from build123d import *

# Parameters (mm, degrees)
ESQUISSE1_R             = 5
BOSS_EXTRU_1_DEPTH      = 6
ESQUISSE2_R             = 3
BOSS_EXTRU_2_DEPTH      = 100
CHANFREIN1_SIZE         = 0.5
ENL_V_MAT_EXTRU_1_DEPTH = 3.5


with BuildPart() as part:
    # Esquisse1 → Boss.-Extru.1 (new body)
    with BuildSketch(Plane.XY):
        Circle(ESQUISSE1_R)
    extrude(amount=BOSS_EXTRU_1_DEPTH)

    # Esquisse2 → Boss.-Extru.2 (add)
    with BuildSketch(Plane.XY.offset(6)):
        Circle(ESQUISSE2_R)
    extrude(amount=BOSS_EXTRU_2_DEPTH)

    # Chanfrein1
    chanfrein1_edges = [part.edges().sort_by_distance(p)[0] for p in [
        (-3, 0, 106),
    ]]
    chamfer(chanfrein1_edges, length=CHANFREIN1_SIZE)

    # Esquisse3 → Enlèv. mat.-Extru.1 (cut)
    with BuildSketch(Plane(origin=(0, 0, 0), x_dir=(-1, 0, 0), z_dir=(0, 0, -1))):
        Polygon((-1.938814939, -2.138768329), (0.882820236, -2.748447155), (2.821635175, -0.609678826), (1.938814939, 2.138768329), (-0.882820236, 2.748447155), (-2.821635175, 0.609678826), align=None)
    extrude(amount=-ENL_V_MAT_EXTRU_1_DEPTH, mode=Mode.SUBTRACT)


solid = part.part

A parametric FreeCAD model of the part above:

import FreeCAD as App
import Part
import Sketcher

V = App.Vector


def edges_at(feature, points):
    """Names of the edges that pass closest to the given points."""
    edges = feature.Shape.Edges
    near = lambda p: min(range(len(edges)), key=lambda i: edges[i].distToShape(Part.Vertex(*p))[0])
    return sorted({f"Edge{near(p) + 1}" for p in points})

doc = App.newDocument("Part")
body = doc.addObject("PartDesign::Body", "Body")

sketch1 = doc.addObject("Sketcher::SketchObject", "Sketch")
body.addObject(sketch1)
sketch1.AttachmentSupport = (doc.XY_Plane, [""])
sketch1.MapMode = "FlatFace"
sketch1.addGeometry(Part.Circle(V(0, 0, 0), V(0, 0, 1), 5), False)
sketch1.addConstraint(Sketcher.Constraint("Coincident", 0, 3, -1, 1))
sketch1.addConstraint(Sketcher.Constraint("Diameter", 0, 10.0))
pad1 = doc.addObject("PartDesign::Pad", "Pad")
body.addObject(pad1)
pad1.Profile = sketch1
pad1.Length = 6

sketch2 = doc.addObject("Sketcher::SketchObject", "Sketch001")
body.addObject(sketch2)
sketch2.AttachmentSupport = (doc.XY_Plane, [""])
sketch2.MapMode = "FlatFace"
sketch2.AttachmentOffset = App.Placement(V(0, 0, 6), App.Rotation())
sketch2.addGeometry(Part.Circle(V(0, 0, 0), V(0, 0, 1), 3), False)
sketch2.addConstraint(Sketcher.Constraint("Coincident", 0, 3, -1, 1))
sketch2.addConstraint(Sketcher.Constraint("Diameter", 0, 6.0))
pad2 = doc.addObject("PartDesign::Pad", "Pad001")
body.addObject(pad2)
pad2.Profile = sketch2
pad2.Length = 100
doc.recompute()

chamfer = doc.addObject("PartDesign::Chamfer", "Chamfer")
body.addObject(chamfer)
chamfer.Base = (pad2, edges_at(pad2, [(-3, 0, 106)]))
chamfer.Size = 0.5

sketch3 = doc.addObject("Sketcher::SketchObject", "Sketch002")
body.addObject(sketch3)
sketch3.AttachmentSupport = (doc.XY_Plane, [""])
sketch3.MapMode = "FlatFace"
sketch3.addGeometry(Part.LineSegment(V(1.9, -2.1, 0), V(-0.9, -2.7, 0)), False)
sketch3.addGeometry(Part.LineSegment(V(-0.9, -2.7, 0), V(-2.8, -0.6, 0)), False)
sketch3.addGeometry(Part.LineSegment(V(-2.8, -0.6, 0), V(-1.9, 2.1, 0)), False)
sketch3.addGeometry(Part.LineSegment(V(-1.9, 2.1, 0), V(0.9, 2.7, 0)), False)
sketch3.addGeometry(Part.LineSegment(V(0.9, 2.7, 0), V(2.8, 0.6, 0)), False)
sketch3.addGeometry(Part.LineSegment(V(2.8, 0.6, 0), V(1.9, -2.1, 0)), False)
sketch3.addConstraint(Sketcher.Constraint("Coincident", 0, 2, 1, 1))
sketch3.addConstraint(Sketcher.Constraint("Coincident", 1, 2, 2, 1))
sketch3.addConstraint(Sketcher.Constraint("Coincident", 2, 2, 3, 1))
sketch3.addConstraint(Sketcher.Constraint("Coincident", 3, 2, 4, 1))
sketch3.addConstraint(Sketcher.Constraint("Coincident", 4, 2, 5, 1))
sketch3.addConstraint(Sketcher.Constraint("Coincident", 5, 2, 0, 1))
sketch3.addConstraint(Sketcher.Constraint("Symmetric", 0, 2, 3, 2, -1, 1))
sketch3.addConstraint(Sketcher.Constraint("Symmetric", 1, 2, 4, 2, -1, 1))
sketch3.addConstraint(Sketcher.Constraint("Symmetric", 2, 2, 5, 2, -1, 1))
sketch3.addConstraint(Sketcher.Constraint("Equal", 0, 1))
sketch3.addConstraint(Sketcher.Constraint("Equal", 1, 2))
sketch3.addConstraint(Sketcher.Constraint("Distance", 0, 2.886751))
sketch3.addConstraint(Sketcher.Constraint("DistanceX", 0, 2, -1, 1, 0.88282))
sketch3.addConstraint(Sketcher.Constraint("DistanceY", 1, 2, -1, 1, 0.609679))
sketch3.addConstraint(Sketcher.Constraint("DistanceY", -1, 1, 2, 2, 2.138768))
pocket1 = doc.addObject("PartDesign::Pocket", "Pocket")
body.addObject(pocket1)
pocket1.Profile = sketch3
pocket1.Length = 3.5
pocket1.Reversed = True

doc.recompute()
